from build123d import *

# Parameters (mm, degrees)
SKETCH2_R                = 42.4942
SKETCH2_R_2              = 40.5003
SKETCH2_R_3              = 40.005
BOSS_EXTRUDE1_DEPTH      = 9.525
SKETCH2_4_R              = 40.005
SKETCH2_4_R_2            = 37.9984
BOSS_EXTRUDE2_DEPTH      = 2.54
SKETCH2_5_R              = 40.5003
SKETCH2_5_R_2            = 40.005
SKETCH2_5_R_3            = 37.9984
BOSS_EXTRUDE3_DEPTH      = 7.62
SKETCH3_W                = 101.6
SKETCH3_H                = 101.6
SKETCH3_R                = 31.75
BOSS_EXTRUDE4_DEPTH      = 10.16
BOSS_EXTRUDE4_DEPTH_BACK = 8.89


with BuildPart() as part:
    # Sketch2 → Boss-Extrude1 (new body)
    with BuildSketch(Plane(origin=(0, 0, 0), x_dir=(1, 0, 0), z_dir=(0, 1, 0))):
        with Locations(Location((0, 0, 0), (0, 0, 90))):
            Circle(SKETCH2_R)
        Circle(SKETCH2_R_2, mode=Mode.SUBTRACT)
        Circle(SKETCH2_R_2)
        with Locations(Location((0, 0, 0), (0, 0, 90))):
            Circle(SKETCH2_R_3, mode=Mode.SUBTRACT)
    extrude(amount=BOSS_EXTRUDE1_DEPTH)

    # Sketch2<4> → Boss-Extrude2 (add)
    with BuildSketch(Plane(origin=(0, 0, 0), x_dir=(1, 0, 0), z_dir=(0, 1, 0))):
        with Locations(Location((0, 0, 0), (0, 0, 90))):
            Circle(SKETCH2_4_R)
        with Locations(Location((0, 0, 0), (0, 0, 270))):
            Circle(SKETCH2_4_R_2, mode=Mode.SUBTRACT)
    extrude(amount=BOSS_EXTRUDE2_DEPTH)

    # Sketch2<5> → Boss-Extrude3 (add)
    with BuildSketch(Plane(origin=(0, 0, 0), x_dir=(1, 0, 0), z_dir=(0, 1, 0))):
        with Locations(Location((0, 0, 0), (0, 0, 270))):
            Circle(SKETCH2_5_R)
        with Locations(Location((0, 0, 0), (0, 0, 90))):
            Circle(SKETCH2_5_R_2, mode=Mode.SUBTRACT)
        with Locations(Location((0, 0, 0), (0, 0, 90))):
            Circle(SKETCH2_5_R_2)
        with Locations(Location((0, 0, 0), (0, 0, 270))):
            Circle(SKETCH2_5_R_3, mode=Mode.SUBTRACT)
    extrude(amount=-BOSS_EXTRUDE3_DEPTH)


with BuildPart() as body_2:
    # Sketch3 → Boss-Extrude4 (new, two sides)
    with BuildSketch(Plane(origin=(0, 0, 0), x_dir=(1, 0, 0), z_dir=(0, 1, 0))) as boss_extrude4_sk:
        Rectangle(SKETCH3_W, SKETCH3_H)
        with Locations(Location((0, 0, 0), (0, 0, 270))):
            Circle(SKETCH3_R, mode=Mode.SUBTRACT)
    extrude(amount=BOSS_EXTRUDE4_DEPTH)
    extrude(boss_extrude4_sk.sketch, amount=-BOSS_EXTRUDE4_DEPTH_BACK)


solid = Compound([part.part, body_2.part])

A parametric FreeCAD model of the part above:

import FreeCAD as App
import Part
import Sketcher

V = App.Vector
Q = App.Units.Quantity

doc = App.newDocument("Part")
params = doc.addObject("Spreadsheet::Sheet", "Params")
for row, (alias, value) in enumerate([
    ("sketch1_diameter", "3.15 in"),
    ("sketch1_diameter2", "3.346 in"),
    ("pad1_length", "0.375 in"),
    ("sketch2_diameter", "3.15 in"),
    ("sketch2_diameter2", "2.992 in"),
    ("pad2_length", "0.1 in"),
    ("sketch3_diameter", "3.189 in"),
    ("sketch3_diameter2", "2.992 in"),
    ("pad3_length", "0.3 in"),
    ("sketch4_diameter", "2.5 in"),
    ("sketch4_width", "4 in"),
    ("pad4_length", "0.4 in"),
    ("pad4_length2", "0.35 in"),
], start=1):
    params.set(f"A{row}", alias)
    params.set(f"B{row}", "=" + value)
    params.setAlias(f"B{row}", alias)

body = doc.addObject("PartDesign::Body", "Body")

sketch1 = body.newObject("Sketcher::SketchObject", "Sketch")
sketch1.AttachmentSupport = (doc.getObject("XZ_Plane"), [""])
sketch1.MapMode = "FlatFace"
sketch1.addGeometry([
    Part.Circle(V(0, 0, 0), V(0, 0, 1), 42.4942),
    Part.Circle(V(0, 0, 0), V(0, 0, 1), 40.005),
], False)
sketch1.addConstraint([
    Sketcher.Constraint("Coincident", 0, 3, -1, 1),
    Sketcher.Constraint("Coincident", 1, 3, -1, 1),
    Sketcher.Constraint("Diameter", 1, Q("3.15 in")),
    Sketcher.Constraint("Diameter", 0, Q("3.346 in")),
])
sketch1.setExpression("Constraints[2]", "Params.sketch1_diameter")
sketch1.setExpression("Constraints[3]", "Params.sketch1_diameter2")
pad1 = body.newObject("PartDesign::Pad", "Pad")
pad1.Profile = sketch1
pad1.setExpression("Length", "Params.pad1_length")
pad1.Reversed = True

sketch2 = body.newObject("Sketcher::SketchObject", "Sketch001")
sketch2.AttachmentSupport = (doc.getObject("XZ_Plane"), [""])
sketch2.MapMode = "FlatFace"
sketch2.addGeometry([
    Part.Circle(V(0, 0, 0), V(0, 0, 1), 40.005),
    Part.Circle(V(0, 0, 0), V(0, 0, 1), 37.9984),
], False)
sketch2.addConstraint([
    Sketcher.Constraint("Coincident", 0, 3, -1, 1),
    Sketcher.Constraint("Coincident", 1, 3, -1, 1),
    Sketcher.Constraint("Diameter", 0, Q("3.15 in")),
    Sketcher.Constraint("Diameter", 1, Q("2.992 in")),
])
sketch2.setExpression("Constraints[2]", "Params.sketch2_diameter")
sketch2.setExpression("Constraints[3]", "Params.sketch2_diameter2")
pad2 = body.newObject("PartDesign::Pad", "Pad001")
pad2.Profile = sketch2
pad2.setExpression("Length", "Params.pad2_length")
pad2.Reversed = True

sketch3 = body.newObject("Sketcher::SketchObject", "Sketch002")
sketch3.AttachmentSupport = (doc.getObject("XZ_Plane"), [""])
sketch3.MapMode = "FlatFace"
sketch3.addGeometry([
    Part.Circle(V(0, 0, 0), V(0, 0, 1), 40.5003),
    Part.Circle(V(0, 0, 0), V(0, 0, 1), 37.9984),
], False)
sketch3.addConstraint([
    Sketcher.Constraint("Coincident", 0, 3, -1, 1),
    Sketcher.Constraint("Coincident", 1, 3, -1, 1),
    Sketcher.Constraint("Diameter", 0, Q("3.189 in")),
    Sketcher.Constraint("Diameter", 1, Q("2.992 in")),
])
sketch3.setExpression("Constraints[2]", "Params.sketch3_diameter")
sketch3.setExpression("Constraints[3]", "Params.sketch3_diameter2")
pad3 = body.newObject("PartDesign::Pad", "Pad002")
pad3.Profile = sketch3
pad3.setExpression("Length", "Params.pad3_length")
body2 = doc.addObject("PartDesign::Body", "Body001")

sketch4 = body2.newObject("Sketcher::SketchObject", "Sketch003")
sketch4.AttachmentSupport = (doc.getObject("XZ_Plane001"), [""])
sketch4.MapMode = "FlatFace"
sketch4.addGeometry([
    Part.LineSegment(V(-50.8, -50.8, 0), V(-50.8, 50.8, 0)),
    Part.LineSegment(V(-50.8, 50.8, 0), V(50.8, 50.8, 0)),
    Part.LineSegment(V(50.8, 50.8, 0), V(50.8, -50.8, 0)),
    Part.LineSegment(V(50.8, -50.8, 0), V(-50.8, -50.8, 0)),
    Part.Circle(V(0, 0, 0), V(0, 0, 1), 31.75),
], False)
sketch4.addConstraint([
    Sketcher.Constraint("Coincident", 0, 2, 1, 1),
    Sketcher.Constraint("Coincident", 1, 2, 2, 1),
    Sketcher.Constraint("Coincident", 2, 2, 3, 1),
    Sketcher.Constraint("Coincident", 3, 2, 0, 1),
    Sketcher.Constraint("Vertical", 0),
    Sketcher.Constraint("Horizontal", 1),
    Sketcher.Constraint("Vertical", 2),
    Sketcher.Constraint("Horizontal", 3),
    Sketcher.Constraint("Coincident", 4, 3, -1, 1),
    Sketcher.Constraint("Symmetric", 0, 2, 2, 2, -1, 1),
    Sketcher.Constraint("Equal", 3, 0),
    Sketcher.Constraint("Diameter", 4, Q("2.5 in")),
    Sketcher.Constraint("DistanceX", 1, 1, 1, 2, Q("4 in")),
])
sketch4.setExpression("Constraints[11]", "Params.sketch4_diameter")
sketch4.setExpression("Constraints[12]", "Params.sketch4_width")
pad4 = body2.newObject("PartDesign::Pad", "Pad003")
pad4.Profile = sketch4
pad4.Type = "TwoLengths"
pad4.setExpression("Length", "Params.pad4_length")
pad4.setExpression("Length2", "Params.pad4_length2")
pad4.Reversed = True

doc.recompute()
